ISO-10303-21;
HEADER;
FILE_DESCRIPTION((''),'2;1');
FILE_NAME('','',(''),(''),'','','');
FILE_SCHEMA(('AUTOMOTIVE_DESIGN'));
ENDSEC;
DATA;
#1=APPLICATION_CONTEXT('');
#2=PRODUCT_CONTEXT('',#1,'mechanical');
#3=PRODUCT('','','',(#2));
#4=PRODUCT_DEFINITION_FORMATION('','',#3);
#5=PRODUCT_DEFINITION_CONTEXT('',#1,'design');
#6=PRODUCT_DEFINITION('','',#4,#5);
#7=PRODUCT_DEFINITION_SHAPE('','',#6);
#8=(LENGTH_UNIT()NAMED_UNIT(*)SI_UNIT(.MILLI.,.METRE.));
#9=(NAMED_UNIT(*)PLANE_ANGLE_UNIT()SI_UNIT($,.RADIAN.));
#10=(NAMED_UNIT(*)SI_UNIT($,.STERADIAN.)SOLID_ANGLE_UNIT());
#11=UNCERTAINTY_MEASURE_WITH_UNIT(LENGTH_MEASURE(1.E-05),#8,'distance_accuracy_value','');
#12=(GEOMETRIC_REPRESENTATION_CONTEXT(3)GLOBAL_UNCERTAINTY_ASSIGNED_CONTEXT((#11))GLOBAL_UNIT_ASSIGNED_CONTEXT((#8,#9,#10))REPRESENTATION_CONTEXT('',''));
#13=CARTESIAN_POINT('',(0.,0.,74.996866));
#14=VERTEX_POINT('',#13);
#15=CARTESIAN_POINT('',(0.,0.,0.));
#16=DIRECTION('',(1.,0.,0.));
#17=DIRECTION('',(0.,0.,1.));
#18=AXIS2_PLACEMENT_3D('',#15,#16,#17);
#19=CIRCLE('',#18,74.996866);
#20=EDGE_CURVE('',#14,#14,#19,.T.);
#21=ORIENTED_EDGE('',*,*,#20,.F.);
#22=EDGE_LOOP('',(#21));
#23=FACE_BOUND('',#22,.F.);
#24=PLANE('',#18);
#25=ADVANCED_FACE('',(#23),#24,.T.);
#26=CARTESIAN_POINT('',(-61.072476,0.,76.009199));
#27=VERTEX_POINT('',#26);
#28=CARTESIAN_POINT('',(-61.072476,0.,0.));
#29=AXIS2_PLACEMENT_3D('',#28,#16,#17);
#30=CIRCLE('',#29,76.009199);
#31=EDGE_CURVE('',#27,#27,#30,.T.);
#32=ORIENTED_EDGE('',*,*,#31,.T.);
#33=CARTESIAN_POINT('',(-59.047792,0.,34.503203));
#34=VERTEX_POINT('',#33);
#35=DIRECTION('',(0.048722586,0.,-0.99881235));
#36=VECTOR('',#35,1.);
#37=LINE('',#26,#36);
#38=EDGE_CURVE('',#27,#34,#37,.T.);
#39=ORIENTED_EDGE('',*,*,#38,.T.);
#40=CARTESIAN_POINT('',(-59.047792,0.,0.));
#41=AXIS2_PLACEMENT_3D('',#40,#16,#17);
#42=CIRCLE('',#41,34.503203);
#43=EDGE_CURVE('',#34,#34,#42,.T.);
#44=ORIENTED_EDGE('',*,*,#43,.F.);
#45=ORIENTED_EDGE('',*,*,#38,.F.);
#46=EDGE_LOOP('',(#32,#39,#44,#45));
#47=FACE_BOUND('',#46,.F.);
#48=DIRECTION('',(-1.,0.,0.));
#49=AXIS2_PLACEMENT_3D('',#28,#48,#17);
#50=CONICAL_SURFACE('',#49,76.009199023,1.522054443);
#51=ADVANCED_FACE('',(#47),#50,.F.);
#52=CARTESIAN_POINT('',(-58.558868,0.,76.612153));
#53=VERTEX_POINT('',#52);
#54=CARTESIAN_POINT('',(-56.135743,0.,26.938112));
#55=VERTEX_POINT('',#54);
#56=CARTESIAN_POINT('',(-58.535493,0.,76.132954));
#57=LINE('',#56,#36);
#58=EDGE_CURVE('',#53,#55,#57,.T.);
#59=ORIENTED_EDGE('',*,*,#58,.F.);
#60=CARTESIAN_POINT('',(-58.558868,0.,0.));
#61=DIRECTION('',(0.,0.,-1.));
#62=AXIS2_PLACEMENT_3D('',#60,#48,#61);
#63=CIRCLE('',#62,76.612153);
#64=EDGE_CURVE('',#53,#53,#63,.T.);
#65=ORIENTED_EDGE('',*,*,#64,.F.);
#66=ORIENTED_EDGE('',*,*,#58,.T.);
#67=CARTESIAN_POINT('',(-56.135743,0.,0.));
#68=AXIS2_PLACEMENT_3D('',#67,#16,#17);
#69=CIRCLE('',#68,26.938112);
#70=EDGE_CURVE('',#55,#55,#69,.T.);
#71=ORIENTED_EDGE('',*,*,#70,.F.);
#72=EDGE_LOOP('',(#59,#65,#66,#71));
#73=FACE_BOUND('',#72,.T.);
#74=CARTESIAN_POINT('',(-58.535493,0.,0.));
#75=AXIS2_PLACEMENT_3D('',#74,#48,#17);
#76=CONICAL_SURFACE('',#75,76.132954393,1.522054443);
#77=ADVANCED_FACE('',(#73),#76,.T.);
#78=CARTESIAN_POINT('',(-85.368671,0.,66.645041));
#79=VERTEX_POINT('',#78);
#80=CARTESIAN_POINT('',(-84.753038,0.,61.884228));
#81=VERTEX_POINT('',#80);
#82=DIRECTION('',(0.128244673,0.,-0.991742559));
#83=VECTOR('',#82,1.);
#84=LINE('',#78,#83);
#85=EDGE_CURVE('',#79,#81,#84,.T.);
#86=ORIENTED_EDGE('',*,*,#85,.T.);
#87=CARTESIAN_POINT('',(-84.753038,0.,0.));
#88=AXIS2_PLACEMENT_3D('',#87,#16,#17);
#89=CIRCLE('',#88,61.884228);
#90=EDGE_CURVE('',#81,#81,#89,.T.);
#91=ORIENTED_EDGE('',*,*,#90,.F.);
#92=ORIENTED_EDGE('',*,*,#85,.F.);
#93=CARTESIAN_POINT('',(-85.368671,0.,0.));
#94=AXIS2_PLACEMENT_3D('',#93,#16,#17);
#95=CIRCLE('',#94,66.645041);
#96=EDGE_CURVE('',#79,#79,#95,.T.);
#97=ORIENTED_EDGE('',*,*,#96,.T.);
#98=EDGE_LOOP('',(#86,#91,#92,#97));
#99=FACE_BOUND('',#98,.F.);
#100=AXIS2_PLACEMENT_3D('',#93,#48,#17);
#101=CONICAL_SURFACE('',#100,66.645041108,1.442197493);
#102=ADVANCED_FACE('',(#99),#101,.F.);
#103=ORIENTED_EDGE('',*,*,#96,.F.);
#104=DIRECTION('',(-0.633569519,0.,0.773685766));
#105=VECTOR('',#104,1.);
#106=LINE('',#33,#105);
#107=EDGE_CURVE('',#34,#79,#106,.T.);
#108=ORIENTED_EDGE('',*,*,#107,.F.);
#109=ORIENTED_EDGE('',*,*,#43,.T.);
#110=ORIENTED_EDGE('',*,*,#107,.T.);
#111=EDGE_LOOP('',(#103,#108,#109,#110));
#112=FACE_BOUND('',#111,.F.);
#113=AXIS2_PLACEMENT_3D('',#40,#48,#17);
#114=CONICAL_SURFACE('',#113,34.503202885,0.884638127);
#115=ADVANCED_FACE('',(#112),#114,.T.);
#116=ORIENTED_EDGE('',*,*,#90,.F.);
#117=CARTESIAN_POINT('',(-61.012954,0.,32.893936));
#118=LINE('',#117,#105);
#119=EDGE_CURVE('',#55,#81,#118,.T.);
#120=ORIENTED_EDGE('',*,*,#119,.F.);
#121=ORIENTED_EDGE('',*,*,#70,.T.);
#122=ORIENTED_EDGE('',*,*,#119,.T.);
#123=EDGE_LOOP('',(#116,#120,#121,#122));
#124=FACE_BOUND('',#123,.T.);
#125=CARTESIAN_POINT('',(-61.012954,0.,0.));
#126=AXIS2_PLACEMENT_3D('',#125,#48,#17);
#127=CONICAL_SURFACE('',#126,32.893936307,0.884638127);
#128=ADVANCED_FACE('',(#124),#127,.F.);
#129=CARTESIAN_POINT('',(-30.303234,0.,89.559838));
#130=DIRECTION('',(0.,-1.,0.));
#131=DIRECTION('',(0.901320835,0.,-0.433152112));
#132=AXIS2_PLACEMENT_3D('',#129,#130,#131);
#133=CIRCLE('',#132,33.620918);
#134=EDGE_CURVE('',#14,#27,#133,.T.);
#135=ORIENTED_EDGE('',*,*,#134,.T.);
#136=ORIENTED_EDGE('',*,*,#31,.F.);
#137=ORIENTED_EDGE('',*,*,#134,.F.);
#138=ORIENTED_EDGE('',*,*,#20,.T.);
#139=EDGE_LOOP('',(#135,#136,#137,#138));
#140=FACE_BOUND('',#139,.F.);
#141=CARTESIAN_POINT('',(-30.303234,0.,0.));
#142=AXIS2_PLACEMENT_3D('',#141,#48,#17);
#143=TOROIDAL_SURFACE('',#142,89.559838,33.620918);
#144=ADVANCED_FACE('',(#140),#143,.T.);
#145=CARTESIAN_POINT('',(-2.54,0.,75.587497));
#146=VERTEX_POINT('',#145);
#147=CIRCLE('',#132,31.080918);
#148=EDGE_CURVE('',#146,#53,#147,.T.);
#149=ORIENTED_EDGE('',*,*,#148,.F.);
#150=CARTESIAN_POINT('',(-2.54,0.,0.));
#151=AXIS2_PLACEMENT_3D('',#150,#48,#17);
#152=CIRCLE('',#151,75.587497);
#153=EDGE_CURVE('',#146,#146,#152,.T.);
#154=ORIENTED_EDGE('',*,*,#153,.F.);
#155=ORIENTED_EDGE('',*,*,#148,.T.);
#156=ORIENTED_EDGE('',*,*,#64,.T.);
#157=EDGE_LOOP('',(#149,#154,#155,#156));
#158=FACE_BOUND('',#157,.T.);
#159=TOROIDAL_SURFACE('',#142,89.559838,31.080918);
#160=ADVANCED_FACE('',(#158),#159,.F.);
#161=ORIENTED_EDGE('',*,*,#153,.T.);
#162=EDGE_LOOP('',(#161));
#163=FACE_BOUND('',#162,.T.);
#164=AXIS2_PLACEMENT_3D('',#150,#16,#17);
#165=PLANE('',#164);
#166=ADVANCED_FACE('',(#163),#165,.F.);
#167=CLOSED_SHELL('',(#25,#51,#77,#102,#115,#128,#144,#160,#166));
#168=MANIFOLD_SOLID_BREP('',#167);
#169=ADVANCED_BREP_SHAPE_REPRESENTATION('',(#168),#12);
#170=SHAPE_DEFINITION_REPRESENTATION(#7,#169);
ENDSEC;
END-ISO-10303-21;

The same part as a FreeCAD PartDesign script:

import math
import FreeCAD as App
import Part
import Sketcher
from FreeCAD import Vector
Q = App.Units.Quantity


def faces_at(feature, points):
    """Names of the faces that lie closest to the given points."""
    faces = feature.Shape.Faces
    near = lambda p: min(range(len(faces)), key=lambda i: faces[i].distToShape(Part.Vertex(*p))[0])
    return sorted({f"Face{near(p) + 1}" for p in points})

doc = App.newDocument("Part")
body = doc.addObject("PartDesign::Body", "Body")

sketch1 = doc.addObject("Sketcher::SketchObject", "Sketch")
body.addObject(sketch1)
sketch1.AttachmentSupport = (doc.XZ_Plane, [""])
sketch1.MapMode = "FlatFace"
sketch1.addGeometry([
    Part.LineSegment(Vector(-77, 0, 0), Vector(0, 0, 0)),
    Part.LineSegment(Vector(0, 0, 0), Vector(0, 75, 0)),
    Part.ArcOfCircle(Part.Circle(Vector(-30, 90, 0), Vector(0, 0, 1), 34), math.radians(-26), math.radians(204)),
    Part.LineSegment(Vector(-61, 76, 0), Vector(-59, 35, 0)),
    Part.LineSegment(Vector(-59, 35, 0), Vector(-85, 67, 0)),
    Part.LineSegment(Vector(-85, 67, 0), Vector(-77, 0, 0)),
], False)
sketch1.addConstraint([
    Sketcher.Constraint("Coincident", 0, 2, 1, 1),
    Sketcher.Constraint("Coincident", 1, 2, 2, 1),
    Sketcher.Constraint("Coincident", 2, 2, 3, 1),
    Sketcher.Constraint("Coincident", 3, 2, 4, 1),
    Sketcher.Constraint("Coincident", 4, 2, 5, 1),
    Sketcher.Constraint("Coincident", 5, 2, 0, 1),
    Sketcher.Constraint("Horizontal", 0),
    Sketcher.Constraint("Vertical", 1),
    Sketcher.Constraint("Coincident", 0, 2, -1, 1),
    Sketcher.Constraint("Radius", 2, 33.620918),
    Sketcher.Constraint("DistanceY", -1, 1, 2, 2, 76.009199),
    Sketcher.Constraint("Distance", 3, 41.555349),
    Sketcher.Constraint("Distance", 4, 41.543789),
    Sketcher.Constraint("Distance", 5, 67.199941),
    Sketcher.Constraint("DistanceX", 0, 1, 0, 2, 76.750636),
    Sketcher.Constraint("DistanceY", 1, 1, 1, 2, 74.996866),
    Sketcher.Constraint("DistanceX", 4, 2, -1, 1, 85.368671),
    Sketcher.Constraint("DistanceY", 1, 2, 2, 3, 14.562971),
])
revolution = doc.addObject("PartDesign::Revolution", "Revolution")
body.addObject(revolution)
revolution.Profile = sketch1
revolution.ReferenceAxis = (sketch1, ["H_Axis"])
revolution.Angle = 360
doc.recompute()

thickness = doc.addObject("PartDesign::Thickness", "Thickness")
body.addObject(thickness)
thickness.Base = (revolution, faces_at(revolution, [(-81.06, 0, -33.323)]))
thickness.Value = Q("0.1 in")
thickness.Reversed = True
thickness.Join = "Intersection"

doc.recompute()
